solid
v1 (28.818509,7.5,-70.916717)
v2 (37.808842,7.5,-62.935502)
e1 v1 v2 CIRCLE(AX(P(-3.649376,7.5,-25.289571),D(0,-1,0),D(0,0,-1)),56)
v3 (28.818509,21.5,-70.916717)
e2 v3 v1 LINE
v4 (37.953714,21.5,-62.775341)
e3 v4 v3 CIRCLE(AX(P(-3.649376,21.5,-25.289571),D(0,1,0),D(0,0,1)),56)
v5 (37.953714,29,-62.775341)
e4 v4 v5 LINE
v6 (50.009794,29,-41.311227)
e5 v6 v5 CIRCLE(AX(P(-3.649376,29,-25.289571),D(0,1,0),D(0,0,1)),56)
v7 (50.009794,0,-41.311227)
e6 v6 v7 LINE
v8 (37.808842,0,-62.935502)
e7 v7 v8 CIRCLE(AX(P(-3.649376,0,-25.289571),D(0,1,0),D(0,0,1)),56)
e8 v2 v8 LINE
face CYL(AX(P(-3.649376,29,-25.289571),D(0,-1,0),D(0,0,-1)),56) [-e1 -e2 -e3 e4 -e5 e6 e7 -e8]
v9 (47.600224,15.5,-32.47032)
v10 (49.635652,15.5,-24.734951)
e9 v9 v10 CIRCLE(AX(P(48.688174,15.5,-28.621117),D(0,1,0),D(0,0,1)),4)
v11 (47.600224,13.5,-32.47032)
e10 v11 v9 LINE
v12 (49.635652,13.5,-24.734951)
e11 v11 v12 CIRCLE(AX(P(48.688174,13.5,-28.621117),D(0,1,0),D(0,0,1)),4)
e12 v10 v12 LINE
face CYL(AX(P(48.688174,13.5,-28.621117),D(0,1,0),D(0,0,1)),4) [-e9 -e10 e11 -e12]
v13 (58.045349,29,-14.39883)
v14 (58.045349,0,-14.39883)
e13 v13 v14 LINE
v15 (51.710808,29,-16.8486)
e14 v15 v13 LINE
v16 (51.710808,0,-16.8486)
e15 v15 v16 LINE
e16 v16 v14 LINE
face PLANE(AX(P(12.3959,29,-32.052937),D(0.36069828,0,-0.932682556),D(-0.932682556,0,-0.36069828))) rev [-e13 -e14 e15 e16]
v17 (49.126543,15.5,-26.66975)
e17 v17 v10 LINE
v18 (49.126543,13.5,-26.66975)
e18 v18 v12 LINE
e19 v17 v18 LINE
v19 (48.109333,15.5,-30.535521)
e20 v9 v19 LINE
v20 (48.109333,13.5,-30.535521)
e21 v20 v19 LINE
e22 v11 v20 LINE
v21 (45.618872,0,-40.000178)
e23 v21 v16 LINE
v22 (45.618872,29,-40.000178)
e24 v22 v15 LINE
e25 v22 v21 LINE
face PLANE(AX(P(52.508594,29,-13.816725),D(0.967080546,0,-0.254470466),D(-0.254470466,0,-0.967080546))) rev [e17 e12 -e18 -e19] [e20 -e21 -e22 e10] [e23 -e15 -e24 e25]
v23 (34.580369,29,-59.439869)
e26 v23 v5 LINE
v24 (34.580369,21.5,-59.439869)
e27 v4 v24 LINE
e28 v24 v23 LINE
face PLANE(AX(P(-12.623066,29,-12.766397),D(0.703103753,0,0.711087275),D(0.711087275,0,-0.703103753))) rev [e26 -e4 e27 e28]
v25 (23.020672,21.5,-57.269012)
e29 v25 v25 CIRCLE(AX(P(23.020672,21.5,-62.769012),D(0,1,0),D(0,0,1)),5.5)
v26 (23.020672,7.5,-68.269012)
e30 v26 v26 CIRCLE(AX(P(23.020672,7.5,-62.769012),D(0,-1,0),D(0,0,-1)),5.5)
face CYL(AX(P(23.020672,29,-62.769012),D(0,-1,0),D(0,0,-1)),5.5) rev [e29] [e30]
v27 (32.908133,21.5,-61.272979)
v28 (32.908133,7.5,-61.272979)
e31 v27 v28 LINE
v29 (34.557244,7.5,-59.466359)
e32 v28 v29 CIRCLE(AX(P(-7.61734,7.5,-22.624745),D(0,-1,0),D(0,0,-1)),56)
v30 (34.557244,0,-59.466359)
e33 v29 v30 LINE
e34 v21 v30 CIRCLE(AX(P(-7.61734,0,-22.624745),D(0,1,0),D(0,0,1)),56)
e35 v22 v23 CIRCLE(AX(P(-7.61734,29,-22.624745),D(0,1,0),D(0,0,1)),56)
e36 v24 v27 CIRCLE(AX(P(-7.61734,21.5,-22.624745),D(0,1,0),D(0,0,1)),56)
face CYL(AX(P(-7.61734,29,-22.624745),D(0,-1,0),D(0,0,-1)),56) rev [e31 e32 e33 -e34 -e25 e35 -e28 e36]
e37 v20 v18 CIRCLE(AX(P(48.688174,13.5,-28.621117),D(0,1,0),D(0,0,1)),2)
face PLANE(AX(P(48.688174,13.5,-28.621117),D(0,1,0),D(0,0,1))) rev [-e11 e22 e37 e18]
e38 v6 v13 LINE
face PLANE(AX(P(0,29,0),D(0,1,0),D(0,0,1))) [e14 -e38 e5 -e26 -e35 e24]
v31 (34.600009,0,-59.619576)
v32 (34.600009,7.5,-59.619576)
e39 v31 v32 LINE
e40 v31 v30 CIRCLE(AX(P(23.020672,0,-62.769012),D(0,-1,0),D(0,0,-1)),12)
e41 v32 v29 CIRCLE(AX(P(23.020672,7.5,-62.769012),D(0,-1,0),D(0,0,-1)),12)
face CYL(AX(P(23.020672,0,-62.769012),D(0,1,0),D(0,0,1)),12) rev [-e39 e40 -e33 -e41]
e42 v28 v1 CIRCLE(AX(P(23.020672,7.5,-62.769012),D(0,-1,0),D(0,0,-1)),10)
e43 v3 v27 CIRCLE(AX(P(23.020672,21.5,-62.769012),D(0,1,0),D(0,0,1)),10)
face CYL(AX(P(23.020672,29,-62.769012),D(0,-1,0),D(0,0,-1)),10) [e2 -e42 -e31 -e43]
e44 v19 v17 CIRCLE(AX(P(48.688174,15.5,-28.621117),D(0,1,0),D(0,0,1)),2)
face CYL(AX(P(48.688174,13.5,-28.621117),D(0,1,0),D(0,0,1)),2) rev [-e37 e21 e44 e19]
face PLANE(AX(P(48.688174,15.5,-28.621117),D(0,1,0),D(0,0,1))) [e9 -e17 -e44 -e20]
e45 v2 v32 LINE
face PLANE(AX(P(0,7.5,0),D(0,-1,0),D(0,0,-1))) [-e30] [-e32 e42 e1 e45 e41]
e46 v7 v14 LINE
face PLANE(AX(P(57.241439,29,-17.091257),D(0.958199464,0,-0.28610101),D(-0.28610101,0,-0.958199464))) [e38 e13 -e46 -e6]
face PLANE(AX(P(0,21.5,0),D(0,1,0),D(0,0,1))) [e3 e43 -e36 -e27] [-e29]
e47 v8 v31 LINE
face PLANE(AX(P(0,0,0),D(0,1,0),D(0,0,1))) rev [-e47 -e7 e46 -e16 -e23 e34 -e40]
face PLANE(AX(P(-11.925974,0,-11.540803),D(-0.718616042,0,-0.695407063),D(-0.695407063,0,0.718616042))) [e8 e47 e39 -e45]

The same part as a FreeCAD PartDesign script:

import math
import FreeCAD as App
import Part
import Sketcher
from FreeCAD import Vector
Q = App.Units.Quantity

doc = App.newDocument("Part")
params = doc.addObject("Spreadsheet::Sheet", "Params")
for row, (alias, value) in enumerate([
    ("sketch1_diameter", "11 mm"),
    ("sketch1_radius", "56 mm"),
    ("sketch1_radius2", "10 mm"),
    ("pad1_length", "29 mm"),
    ("sketch2_radius", "12 mm"),
    ("pocket1_length", "7 mm"),
    ("pocket1_length2", "0.5 mm"),
    ("sketch3_radius", "12 mm"),
    ("pocket2_length", "7 mm"),
    ("pocket2_length2", "0.5 mm"),
    ("sketch4_diameter", "8 mm"),
    ("sketch4_diameter2", "4 mm"),
    ("pad2_length", "1 mm"),
    ("pad2_length2", "1 mm"),
], start=1):
    params.set(f"A{row}", alias)
    params.set(f"B{row}", "=" + value)
    params.setAlias(f"B{row}", alias)

body = doc.addObject("PartDesign::Body", "Body")

# Sketch on XZ plane
sketch1 = body.newObject("Sketcher::SketchObject", "Sketch")
sketch1.AttachmentSupport = (doc.getObject("XZ_Plane"), [""])
sketch1.MapMode = "FlatFace"
sketch1.addGeometry(Part.ArcOfCircle(Part.Circle(Vector(-4, -25, 0), Vector(0, 0, 1), 56), math.radians(-55), math.radians(-17)), False)
sketch1.addGeometry(Part.ArcOfCircle(Part.Circle(Vector(23, -63, 0), Vector(0, 0, 1), 10), math.radians(9), math.radians(305)), False)
sketch1.addGeometry(Part.ArcOfCircle(Part.Circle(Vector(-8, -23, 0), Vector(0, 0, 1), 56), math.radians(-44), math.radians(-18)), False)
sketch1.addGeometry(Part.LineSegment(Vector(46, -40, 0), Vector(52, -17, 0)), False)
sketch1.addGeometry(Part.LineSegment(Vector(52, -17, 0), Vector(58, -14, 0)), False)
sketch1.addGeometry(Part.LineSegment(Vector(58, -14, 0), Vector(50, -41, 0)), False)
sketch1.addGeometry(Part.Circle(Vector(23, -63, 0), Vector(0, 0, 1), 6), False)
sketch1.addConstraint(Sketcher.Constraint("Tangent", 0, 1, 1, 2))
sketch1.addConstraint(Sketcher.Constraint("Coincident", 1, 1, 2, 1))
sketch1.addConstraint(Sketcher.Constraint("Coincident", 2, 2, 3, 1))
sketch1.addConstraint(Sketcher.Constraint("Coincident", 3, 2, 4, 1))
sketch1.addConstraint(Sketcher.Constraint("Coincident", 4, 2, 5, 1))
sketch1.addConstraint(Sketcher.Constraint("Tangent", 5, 2, 0, 2))
sketch1.addConstraint(Sketcher.Constraint("Coincident", 6, 3, 1, 3))
sketch1.addConstraint(Sketcher.Constraint("Equal", 0, 2))
sketch1.addConstraint(Sketcher.Constraint("Diameter", 6, Q("11 mm")))
sketch1.addConstraint(Sketcher.Constraint("Radius", 0, Q("56 mm")))
sketch1.addConstraint(Sketcher.Constraint("Radius", 1, Q("10 mm")))
sketch1.addConstraint(Sketcher.Constraint("DistanceY", 3, 2, -1, 1, Q("16.8486 mm")))
sketch1.addConstraint(Sketcher.Constraint("DistanceY", 1, 1, 2, 2, Q("21.272801 mm")))
sketch1.addConstraint(Sketcher.Constraint("DistanceX", 1, 3, 2, 2, Q("22.5982 mm")))
sketch1.addConstraint(Sketcher.Constraint("Distance", 3, Q("23.939658 mm")))
sketch1.addConstraint(Sketcher.Constraint("DistanceY", 0, 3, -1, 1, Q("25.289571 mm")))
sketch1.addConstraint(Sketcher.Constraint("DistanceX", 2, 3, -1, 1, Q("7.61734 mm")))
sketch1.addConstraint(Sketcher.Constraint("DistanceX", -1, 1, 0, 1, Q("28.818509 mm")))
sketch1.addConstraint(Sketcher.Constraint("DistanceY", 1, 1, -1, 1, Q("61.272979 mm")))
sketch1.addConstraint(Sketcher.Constraint("DistanceX", -1, 1, 4, 2, Q("58.045349 mm")))
sketch1.addConstraint(Sketcher.Constraint("DistanceY", 4, 2, -1, 1, Q("14.39883 mm")))
sketch1.setExpression("Constraints[8]", "Params.sketch1_diameter")
sketch1.setExpression("Constraints[9]", "Params.sketch1_radius")
sketch1.setExpression("Constraints[10]", "Params.sketch1_radius2")
pad1 = body.newObject("PartDesign::Pad", "Pad")
pad1.Profile = sketch1
pad1.setExpression("Length", "Params.pad1_length")
pad1.Reversed = True

# Sketch on XZ plane
sketch2 = body.newObject("Sketcher::SketchObject", "Sketch001")
sketch2.AttachmentSupport = (doc.getObject("XZ_Plane"), [""])
sketch2.MapMode = "FlatFace"
sketch2.AttachmentOffset = App.Placement(Vector(0, 0, -7), App.Rotation())
sketch2.addGeometry(Part.LineSegment(Vector(17, -41, 0), Vector(1, -59, 0)), False)
sketch2.addGeometry(Part.LineSegment(Vector(1, -59, 0), Vector(24, -83, 0)), False)
sketch2.addGeometry(Part.LineSegment(Vector(24, -83, 0), Vector(39, -65, 0)), False)
sketch2.addGeometry(Part.LineSegment(Vector(39, -65, 0), Vector(35, -60, 0)), False)
sketch2.addGeometry(Part.ArcOfCircle(Part.Circle(Vector(23, -63, 0), Vector(0, 0, 1), 12), math.radians(15), math.radians(73)), False)
sketch2.addGeometry(Part.LineSegment(Vector(27, -51, 0), Vector(17, -41, 0)), False)
sketch2.addConstraint(Sketcher.Constraint("Coincident", 0, 2, 1, 1))
sketch2.addConstraint(Sketcher.Constraint("Coincident", 1, 2, 2, 1))
sketch2.addConstraint(Sketcher.Constraint("Coincident", 2, 2, 3, 1))
sketch2.addConstraint(Sketcher.Constraint("Coincident", 3, 2, 4, 1))
sketch2.addConstraint(Sketcher.Constraint("Coincident", 4, 2, 5, 1))
sketch2.addConstraint(Sketcher.Constraint("Coincident", 5, 2, 0, 1))
sketch2.addConstraint(Sketcher.Constraint("Parallel", 0, 2))
sketch2.addConstraint(Sketcher.Constraint("Parallel", 1, 3))
sketch2.addConstraint(Sketcher.Constraint("Parallel", 3, 5))
sketch2.addConstraint(Sketcher.Constraint("Equal", 0, 2))
sketch2.addConstraint(Sketcher.Constraint("Radius", 4, Q("12 mm")))
sketch2.addConstraint(Sketcher.Constraint("DistanceY", 0, 2, -1, 1, Q("59.252301 mm")))
sketch2.addConstraint(Sketcher.Constraint("DistanceY", 1, 2, 3, 2, Q("23.3184 mm")))
sketch2.addConstraint(Sketcher.Constraint("Distance", 3, Q("6.984862 mm")))
sketch2.addConstraint(Sketcher.Constraint("Distance", 5, Q("14.397029 mm")))
sketch2.addConstraint(Sketcher.Constraint("DistanceX", -1, 1, 0, 2, Q("1.019452 mm")))
sketch2.addConstraint(Sketcher.Constraint("DistanceX", -1, 1, 2, 2, Q("39.457332 mm")))
sketch2.addConstraint(Sketcher.Constraint("DistanceY", 2, 2, -1, 1, Q("64.63901 mm")))
sketch2.addConstraint(Sketcher.Constraint("DistanceX", -1, 1, 3, 2, Q("34.600009 mm")))
sketch2.setExpression("Constraints[10]", "Params.sketch2_radius")
pocket1 = body.newObject("PartDesign::Pocket", "Pocket")
pocket1.Profile = sketch2
pocket1.Type = "TwoLengths"
pocket1.setExpression("Length", "Params.pocket1_length")
pocket1.setExpression("Length2", "Params.pocket1_length2")
pocket1.Reversed = True

# Sketch on XZ plane
sketch3 = body.newObject("Sketcher::SketchObject", "Sketch002")
sketch3.AttachmentSupport = (doc.getObject("XZ_Plane"), [""])
sketch3.MapMode = "FlatFace"
sketch3.AttachmentOffset = App.Placement(Vector(0, 0, -22), App.Rotation())
sketch3.addGeometry(Part.LineSegment(Vector(4, -64, 0), Vector(15, -40, 0)), False)
sketch3.addGeometry(Part.LineSegment(Vector(15, -40, 0), Vector(26, -51, 0)), False)
sketch3.addGeometry(Part.ArcOfCircle(Part.Circle(Vector(23, -63, 0), Vector(0, 0, 1), 12), math.radians(16), math.radians(74)), False)
sketch3.addGeometry(Part.LineSegment(Vector(35, -59, 0), Vector(39, -63, 0)), False)
sketch3.addGeometry(Part.LineSegment(Vector(39, -63, 0), Vector(27, -87, 0)), False)
sketch3.addGeometry(Part.LineSegment(Vector(27, -87, 0), Vector(4, -64, 0)), False)
sketch3.addConstraint(Sketcher.Constraint("Coincident", 0, 2, 1, 1))
sketch3.addConstraint(Sketcher.Constraint("Coincident", 1, 2, 2, 2))
sketch3.addConstraint(Sketcher.Constraint("Coincident", 2, 1, 3, 1))
sketch3.addConstraint(Sketcher.Constraint("Coincident", 3, 2, 4, 1))
sketch3.addConstraint(Sketcher.Constraint("Coincident", 4, 2, 5, 1))
sketch3.addConstraint(Sketcher.Constraint("Coincident", 5, 2, 0, 1))
sketch3.addConstraint(Sketcher.Constraint("Parallel", 1, 3))
sketch3.addConstraint(Sketcher.Constraint("Parallel", 0, 4))
sketch3.addConstraint(Sketcher.Constraint("Parallel", 3, 5))
sketch3.addConstraint(Sketcher.Constraint("Equal", 0, 4))
sketch3.addConstraint(Sketcher.Constraint("Radius", 2, Q("12 mm")))
sketch3.addConstraint(Sketcher.Constraint("DistanceY", 0, 2, -1, 1, Q("40.271001 mm")))
sketch3.addConstraint(Sketcher.Constraint("DistanceX", 2, 1, 3, 2, Q("4.081601 mm")))
sketch3.addConstraint(Sketcher.Constraint("DistanceY", 4, 2, 3, 2, Q("23.629302 mm")))
sketch3.addConstraint(Sketcher.Constraint("Distance", 1, Q("15.56545 mm")))
sketch3.addConstraint(Sketcher.Constraint("Distance", 5, Q("32.942481 mm")))
sketch3.addConstraint(Sketcher.Constraint("DistanceX", -1, 1, 1, 2, Q("26.262238 mm")))
sketch3.addConstraint(Sketcher.Constraint("DistanceY", 2, 3, 0, 2, Q("22.498011 mm")))
sketch3.addConstraint(Sketcher.Constraint("DistanceX", 4, 2, 3, 2, Q("11.591568 mm")))
sketch3.setExpression("Constraints[10]", "Params.sketch3_radius")
pocket2 = body.newObject("PartDesign::Pocket", "Pocket001")
pocket2.Profile = sketch3
pocket2.Type = "TwoLengths"
pocket2.setExpression("Length", "Params.pocket2_length")
pocket2.setExpression("Length2", "Params.pocket2_length2")

# Sketch on XZ plane
sketch4 = body.newObject("Sketcher::SketchObject", "Sketch003")
sketch4.AttachmentSupport = (doc.getObject("XZ_Plane"), [""])
sketch4.MapMode = "FlatFace"
sketch4.AttachmentOffset = App.Placement(Vector(0, 0, -14.5), App.Rotation())
sketch4.addGeometry(Part.Circle(Vector(48.7, -28.6, 0), Vector(0, 0, 1), 4), False)
sketch4.addGeometry(Part.Circle(Vector(48.7, -28.6, 0), Vector(0, 0, 1), 2), False)
sketch4.addConstraint(Sketcher.Constraint("Coincident", 1, 3, 0, 3))
sketch4.addConstraint(Sketcher.Constraint("Diameter", 0, Q("8 mm")))
sketch4.addConstraint(Sketcher.Constraint("Diameter", 1, Q("4 mm")))
sketch4.addConstraint(Sketcher.Constraint("DistanceX", -1, 1, 0, 3, Q("48.688174 mm")))
sketch4.addConstraint(Sketcher.Constraint("DistanceY", 0, 3, -1, 1, Q("28.621117 mm")))
sketch4.setExpression("Constraints[1]", "Params.sketch4_diameter")
sketch4.setExpression("Constraints[2]", "Params.sketch4_diameter2")
pad2 = body.newObject("PartDesign::Pad", "Pad001")
pad2.Profile = sketch4
pad2.Type = "TwoLengths"
pad2.setExpression("Length", "Params.pad2_length")
pad2.setExpression("Length2", "Params.pad2_length2")
pad2.Reversed = True

doc.recompute()
